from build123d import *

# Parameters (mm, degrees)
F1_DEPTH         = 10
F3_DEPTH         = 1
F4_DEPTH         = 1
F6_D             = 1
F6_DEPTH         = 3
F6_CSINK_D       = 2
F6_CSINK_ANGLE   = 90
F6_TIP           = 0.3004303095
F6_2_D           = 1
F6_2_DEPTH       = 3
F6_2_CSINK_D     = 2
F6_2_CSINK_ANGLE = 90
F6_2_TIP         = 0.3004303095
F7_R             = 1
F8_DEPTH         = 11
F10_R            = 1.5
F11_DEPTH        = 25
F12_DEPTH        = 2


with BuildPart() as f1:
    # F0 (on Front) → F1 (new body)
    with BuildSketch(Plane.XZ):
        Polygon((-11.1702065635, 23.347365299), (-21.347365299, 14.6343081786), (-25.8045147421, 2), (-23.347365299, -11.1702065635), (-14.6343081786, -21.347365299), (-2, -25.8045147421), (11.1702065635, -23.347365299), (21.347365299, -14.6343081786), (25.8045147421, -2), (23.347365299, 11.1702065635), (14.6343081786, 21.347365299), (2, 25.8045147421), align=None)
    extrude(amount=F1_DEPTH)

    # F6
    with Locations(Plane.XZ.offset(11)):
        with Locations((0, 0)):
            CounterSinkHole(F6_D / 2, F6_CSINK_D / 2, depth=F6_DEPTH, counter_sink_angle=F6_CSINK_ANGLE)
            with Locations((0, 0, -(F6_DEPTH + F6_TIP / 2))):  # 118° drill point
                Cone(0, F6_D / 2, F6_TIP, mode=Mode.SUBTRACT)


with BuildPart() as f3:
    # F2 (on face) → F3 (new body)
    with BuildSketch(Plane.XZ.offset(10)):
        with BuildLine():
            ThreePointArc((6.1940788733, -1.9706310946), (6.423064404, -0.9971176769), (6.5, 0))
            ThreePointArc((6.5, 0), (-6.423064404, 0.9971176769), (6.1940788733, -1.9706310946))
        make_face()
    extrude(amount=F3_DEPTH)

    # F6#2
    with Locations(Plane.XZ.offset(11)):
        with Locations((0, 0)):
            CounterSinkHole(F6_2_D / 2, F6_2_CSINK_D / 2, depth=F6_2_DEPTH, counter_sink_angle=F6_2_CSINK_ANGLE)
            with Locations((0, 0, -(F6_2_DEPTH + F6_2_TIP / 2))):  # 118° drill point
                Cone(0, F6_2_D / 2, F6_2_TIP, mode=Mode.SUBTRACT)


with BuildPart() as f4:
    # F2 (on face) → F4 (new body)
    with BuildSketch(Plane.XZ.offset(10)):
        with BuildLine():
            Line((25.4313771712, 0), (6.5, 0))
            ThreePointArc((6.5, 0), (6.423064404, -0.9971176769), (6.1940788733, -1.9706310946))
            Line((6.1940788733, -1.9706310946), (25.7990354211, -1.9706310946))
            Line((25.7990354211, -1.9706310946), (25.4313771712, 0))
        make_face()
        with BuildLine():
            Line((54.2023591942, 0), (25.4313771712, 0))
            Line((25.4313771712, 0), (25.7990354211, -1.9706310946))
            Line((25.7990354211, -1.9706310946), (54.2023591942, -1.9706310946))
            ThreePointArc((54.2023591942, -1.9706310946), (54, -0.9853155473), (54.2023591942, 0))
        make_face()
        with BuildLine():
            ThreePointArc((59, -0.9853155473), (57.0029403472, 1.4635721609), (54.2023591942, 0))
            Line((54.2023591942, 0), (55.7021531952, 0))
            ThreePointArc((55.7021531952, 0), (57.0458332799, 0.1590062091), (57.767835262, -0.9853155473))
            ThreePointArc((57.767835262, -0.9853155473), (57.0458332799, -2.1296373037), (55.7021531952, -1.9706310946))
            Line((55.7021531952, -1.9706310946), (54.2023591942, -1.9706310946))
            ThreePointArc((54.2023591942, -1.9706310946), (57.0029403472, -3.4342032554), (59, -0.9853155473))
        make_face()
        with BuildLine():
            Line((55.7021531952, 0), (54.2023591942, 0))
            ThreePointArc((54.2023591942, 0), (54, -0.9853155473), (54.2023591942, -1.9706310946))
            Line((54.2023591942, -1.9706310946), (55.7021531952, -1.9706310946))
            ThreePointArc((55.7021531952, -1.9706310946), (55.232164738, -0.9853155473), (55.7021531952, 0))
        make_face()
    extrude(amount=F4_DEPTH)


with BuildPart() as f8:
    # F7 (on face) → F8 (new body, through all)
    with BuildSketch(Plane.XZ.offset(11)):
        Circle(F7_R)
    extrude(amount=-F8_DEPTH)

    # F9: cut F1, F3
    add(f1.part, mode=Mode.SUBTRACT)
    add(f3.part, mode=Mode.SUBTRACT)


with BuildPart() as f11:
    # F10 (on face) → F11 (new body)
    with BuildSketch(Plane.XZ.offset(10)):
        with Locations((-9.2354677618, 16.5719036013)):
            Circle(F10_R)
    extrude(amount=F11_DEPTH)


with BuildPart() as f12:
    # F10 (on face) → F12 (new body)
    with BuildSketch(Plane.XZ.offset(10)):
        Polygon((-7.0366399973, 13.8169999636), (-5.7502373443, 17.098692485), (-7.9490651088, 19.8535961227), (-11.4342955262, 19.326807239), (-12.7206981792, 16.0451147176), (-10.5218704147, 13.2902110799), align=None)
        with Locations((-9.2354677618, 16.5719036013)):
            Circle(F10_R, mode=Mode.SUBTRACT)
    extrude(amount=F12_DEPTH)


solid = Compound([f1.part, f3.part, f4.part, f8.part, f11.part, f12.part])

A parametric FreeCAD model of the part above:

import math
import FreeCAD as App
import Part
import Sketcher
from FreeCAD import Vector


def add_polygon(sketch, points):
    """Adds a closed chain of lines whose ends are joined by coincident constraints."""
    first, n = sketch.GeometryCount, len(points)
    for a, b in zip(points, points[1:] + points[:1]):
        sketch.addGeometry(Part.LineSegment(App.Vector(*a, 0), App.Vector(*b, 0)), False)
    for i in range(n):
        sketch.addConstraint(Sketcher.Constraint("Coincident", first + i, 2, first + (i + 1) % n, 1))

doc = App.newDocument("Part")
params = doc.addObject("Spreadsheet::Sheet", "Params")
for row, (alias, value) in enumerate([
    ("pad1_length", "10 mm"),
    ("sketch2_diameter", "1 mm"),
    ("hole_diameter", "1 mm"),
    ("hole_depth", "3 mm"),
    ("hole_csink_diameter", "2 mm"),
    ("sketch3_radius", "6.5 mm"),
    ("pad2_length", "1 mm"),
    ("sketch4_diameter", "1 mm"),
    ("hole2_diameter", "1 mm"),
    ("hole2_depth", "3 mm"),
    ("hole2_csink_diameter", "2 mm"),
    ("sketch5_radius", "6.5 mm"),
    ("sketch5_radius2", "2.5 mm"),
    ("pad3_length", "1 mm"),
    ("sketch6_diameter", "2 mm"),
    ("pad4_length", "11 mm"),
    ("sketch7_diameter", "3 mm"),
    ("pad5_length", "25 mm"),
    ("sketch8_diameter", "3 mm"),
    ("pad6_length", "2 mm"),
], start=1):
    params.set(f"A{row}", alias)
    params.set(f"B{row}", "=" + value)
    params.setAlias(f"B{row}", alias)

body = doc.addObject("PartDesign::Body", "Body")

# Sketch on XZ plane
sketch1 = body.newObject("Sketcher::SketchObject", "Sketch")
sketch1.AttachmentSupport = (doc.getObject("XZ_Plane"), [""])
sketch1.MapMode = "FlatFace"
add_polygon(sketch1, [(-11.170207, 23.347365), (-21.347365, 14.634308), (-25.804515, 2), (-23.347365, -11.170207), (-14.634308, -21.347365), (-2, -25.804515), (11.170207, -23.347365), (21.347365, -14.634308), (25.804515, -2), (23.347365, 11.170207), (14.634308, 21.347365), (2, 25.804515)])  # lines 0-11
sketch1.addConstraint([
    Sketcher.Constraint("Symmetric", 0, 2, 6, 2, -1, 1),
    Sketcher.Constraint("Symmetric", 1, 2, 7, 2, -1, 1),
    Sketcher.Constraint("Symmetric", 2, 2, 8, 2, -1, 1),
    Sketcher.Constraint("Symmetric", 3, 2, 9, 2, -1, 1),
    Sketcher.Constraint("Symmetric", 4, 2, 10, 2, -1, 1),
    Sketcher.Constraint("Symmetric", 5, 2, 11, 2, -1, 1),
    Sketcher.Constraint("Perpendicular", 0, 3),
    Sketcher.Constraint("Perpendicular", 1, 4),
    Sketcher.Constraint("Perpendicular", 2, 5),
    Sketcher.Constraint("Equal", 0, 1),
    Sketcher.Constraint("Equal", 1, 2),
    Sketcher.Constraint("Equal", 2, 3),
    Sketcher.Constraint("Equal", 3, 4),
    Sketcher.Constraint("Equal", 4, 5),
    Sketcher.Constraint("DistanceY", -1, 1, 1, 2, 2.0),
    Sketcher.Constraint("DistanceX", 2, 2, 0, 2, 2.0),
    Sketcher.Constraint("DistanceY", 6, 2, 2, 2, 3.464102),
    Sketcher.Constraint("Distance", 0, 13.39746),
])
pad1 = body.newObject("PartDesign::Pad", "Pad")
pad1.Profile = sketch1
pad1.setExpression("Length", "Params.pad1_length")

# Sketch on XZ plane
sketch2 = body.newObject("Sketcher::SketchObject", "Sketch001")
sketch2.AttachmentSupport = (doc.getObject("XZ_Plane"), [""])
sketch2.MapMode = "FlatFace"
sketch2.AttachmentOffset = App.Placement(Vector(0, 0, 11), App.Rotation())
sketch2.addGeometry(Part.Circle(Vector(0, 0, 0), Vector(0, 0, 1), 0.5), False)
sketch2.addConstraint([
    Sketcher.Constraint("Coincident", 0, 3, -1, 1),
    Sketcher.Constraint("Diameter", 0, 1.0),
])
sketch2.setExpression("Constraints[1]", "Params.sketch2_diameter")
doc.recompute()
hole = body.newObject("PartDesign::Hole", "Hole")
hole.Profile = sketch2
hole.ThreadType = "None"
hole.setExpression("Diameter", "Params.hole_diameter")
hole.DepthType = "Dimension"
hole.setExpression("Depth", "Params.hole_depth")
hole.DrillPoint = "Angled"
hole.DrillPointAngle = 118
hole.HoleCutType = "Countersink"
hole.setExpression("HoleCutDiameter", "Params.hole_csink_diameter")
hole.HoleCutCountersinkAngle = 90
body2 = doc.addObject("PartDesign::Body", "Body001")

# Sketch on XZ plane
sketch3 = body2.newObject("Sketcher::SketchObject", "Sketch002")
sketch3.AttachmentSupport = (doc.getObject("XZ_Plane001"), [""])
sketch3.MapMode = "FlatFace"
sketch3.AttachmentOffset = App.Placement(Vector(0, 0, 10), App.Rotation())
sketch3.addGeometry([
    Part.ArcOfCircle(Part.Circle(Vector(0, 0, 0), Vector(0, 0, 1), 6.5), math.radians(-17.648342), math.radians(0)),
    Part.ArcOfCircle(Part.Circle(Vector(0, 0, 0), Vector(0, 0, 1), 6.5), math.radians(0), math.radians(342.351658)),
], False)
sketch3.addConstraint([
    Sketcher.Constraint("Tangent", 0, 1, 1, 2),
    Sketcher.Constraint("Coincident", 1, 1, 0, 2),
    Sketcher.Constraint("Coincident", 0, 3, -1, 1),
    Sketcher.Constraint("PointOnObject", 1, 1, -1),
    Sketcher.Constraint("Radius", 0, 6.5),
    Sketcher.Constraint("DistanceX", -1, 1, 0, 1, 6.194079),
])
sketch3.setExpression("Constraints[4]", "Params.sketch3_radius")
pad2 = body2.newObject("PartDesign::Pad", "Pad001")
pad2.Profile = sketch3
pad2.setExpression("Length", "Params.pad2_length")

# Sketch on XZ plane
sketch4 = body2.newObject("Sketcher::SketchObject", "Sketch003")
sketch4.AttachmentSupport = (doc.getObject("XZ_Plane001"), [""])
sketch4.MapMode = "FlatFace"
sketch4.AttachmentOffset = App.Placement(Vector(0, 0, 11), App.Rotation())
sketch4.addGeometry(Part.Circle(Vector(0, 0, 0), Vector(0, 0, 1), 0.5), False)
sketch4.addConstraint([
    Sketcher.Constraint("Coincident", 0, 3, -1, 1),
    Sketcher.Constraint("Diameter", 0, 1.0),
])
sketch4.setExpression("Constraints[1]", "Params.sketch4_diameter")
doc.recompute()
hole2 = body2.newObject("PartDesign::Hole", "Hole001")
hole2.Profile = sketch4
hole2.ThreadType = "None"
hole2.setExpression("Diameter", "Params.hole2_diameter")
hole2.DepthType = "Dimension"
hole2.setExpression("Depth", "Params.hole2_depth")
hole2.DrillPoint = "Angled"
hole2.DrillPointAngle = 118
hole2.HoleCutType = "Countersink"
hole2.setExpression("HoleCutDiameter", "Params.hole2_csink_diameter")
hole2.HoleCutCountersinkAngle = 90
body3 = doc.addObject("PartDesign::Body", "Body002")

# Sketch on XZ plane
sketch5 = body3.newObject("Sketcher::SketchObject", "Sketch004")
sketch5.AttachmentSupport = (doc.getObject("XZ_Plane002"), [""])
sketch5.MapMode = "FlatFace"
sketch5.AttachmentOffset = App.Placement(Vector(0, 0, 10), App.Rotation())
sketch5.addGeometry([
    Part.ArcOfCircle(Part.Circle(Vector(0, 0, 0), Vector(0, 0, 1), 6.5), math.radians(-17.648342), math.radians(0)),  # 0
    Part.LineSegment(Vector(6.194079, -1.970631, 0), Vector(54.202359, -1.970631, 0)),  # 1
    Part.ArcOfCircle(Part.Circle(Vector(56.5, -0.985316, 0), Vector(0, 0, 1), 2.5), math.radians(-156.78851), math.radians(0)),  # 2
    Part.ArcOfCircle(Part.Circle(Vector(56.5, -0.985316, 0), Vector(0, 0, 1), 2.5), math.radians(0), math.radians(156.78851)),  # 3
    Part.LineSegment(Vector(54.202359, 0, 0), Vector(6.5, 0, 0)),  # 4
    Part.ArcOfCircle(Part.Circle(Vector(56.5, -0.985316, 0), Vector(0, 0, 1), 1.267835), math.radians(128.998385), math.radians(231.001615)),  # 5
    Part.ArcOfCircle(Part.Circle(Vector(56.5, -0.985316, 0), Vector(0, 0, 1), 1.267835), math.radians(0), math.radians(128.998385)),  # 6
    Part.ArcOfCircle(Part.Circle(Vector(56.5, -0.985316, 0), Vector(0, 0, 1), 1.267835), math.radians(-128.998385), math.radians(0)),  # 7
], False)
sketch5.addConstraint([
    Sketcher.Constraint("Coincident", 0, 1, 1, 1),
    Sketcher.Constraint("Coincident", 1, 2, 2, 1),
    Sketcher.Constraint("Tangent", 2, 2, 3, 1),
    Sketcher.Constraint("Coincident", 3, 2, 4, 1),
    Sketcher.Constraint("Coincident", 4, 2, 0, 2),
    Sketcher.Constraint("Tangent", 5, 1, 6, 2),
    Sketcher.Constraint("Tangent", 6, 1, 7, 2),
    Sketcher.Constraint("Tangent", 7, 1, 5, 2),
    Sketcher.Constraint("Horizontal", 1),
    Sketcher.Constraint("Horizontal", 4),
    Sketcher.Constraint("Coincident", 0, 3, -1, 1),
    Sketcher.Constraint("Coincident", 5, 3, 2, 3),
    Sketcher.Constraint("Equal", 2, 3),
    Sketcher.Constraint("PointOnObject", 3, 2, -1),
    Sketcher.Constraint("PointOnObject", 5, 1, -1),
    Sketcher.Constraint("Horizontal", 7, 3, 2, 2),
    Sketcher.Constraint("Horizontal", 2, 2, 6, 1),
    Sketcher.Constraint("Horizontal", 1, 2, 7, 1),
    Sketcher.Constraint("Vertical", 1, 2, 3, 2),
    Sketcher.Constraint("Radius", 0, 6.5),
    Sketcher.Constraint("Radius", 2, 2.5),
    Sketcher.Constraint("DistanceX", -1, 1, 2, 2, 59.0),
    Sketcher.Constraint("Radius", 5, 1.267835),
    Sketcher.Constraint("DistanceX", 1, 1, 1, 2, 48.00828),
])
sketch5.setExpression("Constraints[19]", "Params.sketch5_radius")
sketch5.setExpression("Constraints[20]", "Params.sketch5_radius2")
pad3 = body3.newObject("PartDesign::Pad", "Pad002")
pad3.Profile = sketch5
pad3.setExpression("Length", "Params.pad3_length")
body4 = doc.addObject("PartDesign::Body", "Body003")

# Sketch on XZ plane
sketch6 = body4.newObject("Sketcher::SketchObject", "Sketch005")
sketch6.AttachmentSupport = (doc.getObject("XZ_Plane003"), [""])
sketch6.MapMode = "FlatFace"
sketch6.AttachmentOffset = App.Placement(Vector(0, 0, 11), App.Rotation())
sketch6.addGeometry(Part.Circle(Vector(0, 0, 0), Vector(0, 0, 1), 1), False)
sketch6.addConstraint([
    Sketcher.Constraint("Coincident", 0, 3, -1, 1),
    Sketcher.Constraint("Diameter", 0, 2.0),
])
sketch6.setExpression("Constraints[1]", "Params.sketch6_diameter")
pad4 = body4.newObject("PartDesign::Pad", "Pad003")
pad4.Profile = sketch6
pad4.setExpression("Length", "Params.pad4_length")
pad4.Reversed = True
doc.recompute()

body5 = doc.addObject("PartDesign::Body", "Body004")
body5.BaseFeature = body
boolean = body4.newObject("PartDesign::Boolean", "Boolean")
boolean.Type = "Cut"
boolean.addObjects([body5])
doc.recompute()

body6 = doc.addObject("PartDesign::Body", "Body005")
body6.BaseFeature = body2
boolean2 = body4.newObject("PartDesign::Boolean", "Boolean001")
boolean2.Type = "Cut"
boolean2.addObjects([body6])
doc.recompute()
body7 = doc.addObject("PartDesign::Body", "Body006")

# Sketch on XZ plane
sketch7 = body7.newObject("Sketcher::SketchObject", "Sketch006")
sketch7.AttachmentSupport = (doc.getObject("XZ_Plane006"), [""])
sketch7.MapMode = "FlatFace"
sketch7.AttachmentOffset = App.Placement(Vector(0, 0, 10), App.Rotation())
sketch7.addGeometry(Part.Circle(Vector(-9.235468, 16.571904, 0), Vector(0, 0, 1), 1.5), False)
sketch7.addConstraint([
    Sketcher.Constraint("Diameter", 0, 3.0),
    Sketcher.Constraint("DistanceX", 0, 3, -1, 1, 9.235468),
    Sketcher.Constraint("DistanceY", -1, 1, 0, 3, 16.571904),
])
sketch7.setExpression("Constraints[0]", "Params.sketch7_diameter")
pad5 = body7.newObject("PartDesign::Pad", "Pad004")
pad5.Profile = sketch7
pad5.setExpression("Length", "Params.pad5_length")
body8 = doc.addObject("PartDesign::Body", "Body007")

# Sketch on XZ plane
sketch8 = body8.newObject("Sketcher::SketchObject", "Sketch007")
sketch8.AttachmentSupport = (doc.getObject("XZ_Plane007"), [""])
sketch8.MapMode = "FlatFace"
sketch8.AttachmentOffset = App.Placement(Vector(0, 0, 10), App.Rotation())
add_polygon(sketch8, [(-7.03664, 13.817), (-5.750237, 17.098692), (-7.949065, 19.853596), (-11.434296, 19.326807), (-12.720698, 16.045115), (-10.52187, 13.290211)])  # lines 0-5
sketch8.addGeometry(Part.Circle(Vector(-9.235468, 16.571904, 0), Vector(0, 0, 1), 1.5), False)  # 6
sketch8.addConstraint([
    Sketcher.Constraint("Parallel", 0, 3),
    Sketcher.Constraint("Parallel", 1, 4),
    Sketcher.Constraint("Parallel", 2, 5),
    Sketcher.Constraint("Equal", 0, 1),
    Sketcher.Constraint("Equal", 1, 2),
    Sketcher.Constraint("Equal", 2, 3),
    Sketcher.Constraint("Diameter", 6, 3.0),
    Sketcher.Constraint("DistanceY", -1, 1, 5, 2, 13.817),
    Sketcher.Constraint("DistanceX", 3, 2, -1, 1, 12.720698),
    Sketcher.Constraint("DistanceX", 4, 2, -1, 1, 10.52187),
    Sketcher.Constraint("DistanceY", -1, 1, 4, 2, 13.290211),
    Sketcher.Constraint("DistanceX", 5, 2, -1, 1, 7.03664),
    Sketcher.Constraint("DistanceX", 6, 3, 0, 2, 3.48523),
    Sketcher.Constraint("DistanceY", 6, 3, 0, 2, 0.526789),
    Sketcher.Constraint("DistanceX", 3, 2, 6, 3, 3.48523),
])
sketch8.setExpression("Constraints[12]", "Params.sketch8_diameter")
pad6 = body8.newObject("PartDesign::Pad", "Pad005")
pad6.Profile = sketch8
pad6.setExpression("Length", "Params.pad6_length")

doc.recompute()
